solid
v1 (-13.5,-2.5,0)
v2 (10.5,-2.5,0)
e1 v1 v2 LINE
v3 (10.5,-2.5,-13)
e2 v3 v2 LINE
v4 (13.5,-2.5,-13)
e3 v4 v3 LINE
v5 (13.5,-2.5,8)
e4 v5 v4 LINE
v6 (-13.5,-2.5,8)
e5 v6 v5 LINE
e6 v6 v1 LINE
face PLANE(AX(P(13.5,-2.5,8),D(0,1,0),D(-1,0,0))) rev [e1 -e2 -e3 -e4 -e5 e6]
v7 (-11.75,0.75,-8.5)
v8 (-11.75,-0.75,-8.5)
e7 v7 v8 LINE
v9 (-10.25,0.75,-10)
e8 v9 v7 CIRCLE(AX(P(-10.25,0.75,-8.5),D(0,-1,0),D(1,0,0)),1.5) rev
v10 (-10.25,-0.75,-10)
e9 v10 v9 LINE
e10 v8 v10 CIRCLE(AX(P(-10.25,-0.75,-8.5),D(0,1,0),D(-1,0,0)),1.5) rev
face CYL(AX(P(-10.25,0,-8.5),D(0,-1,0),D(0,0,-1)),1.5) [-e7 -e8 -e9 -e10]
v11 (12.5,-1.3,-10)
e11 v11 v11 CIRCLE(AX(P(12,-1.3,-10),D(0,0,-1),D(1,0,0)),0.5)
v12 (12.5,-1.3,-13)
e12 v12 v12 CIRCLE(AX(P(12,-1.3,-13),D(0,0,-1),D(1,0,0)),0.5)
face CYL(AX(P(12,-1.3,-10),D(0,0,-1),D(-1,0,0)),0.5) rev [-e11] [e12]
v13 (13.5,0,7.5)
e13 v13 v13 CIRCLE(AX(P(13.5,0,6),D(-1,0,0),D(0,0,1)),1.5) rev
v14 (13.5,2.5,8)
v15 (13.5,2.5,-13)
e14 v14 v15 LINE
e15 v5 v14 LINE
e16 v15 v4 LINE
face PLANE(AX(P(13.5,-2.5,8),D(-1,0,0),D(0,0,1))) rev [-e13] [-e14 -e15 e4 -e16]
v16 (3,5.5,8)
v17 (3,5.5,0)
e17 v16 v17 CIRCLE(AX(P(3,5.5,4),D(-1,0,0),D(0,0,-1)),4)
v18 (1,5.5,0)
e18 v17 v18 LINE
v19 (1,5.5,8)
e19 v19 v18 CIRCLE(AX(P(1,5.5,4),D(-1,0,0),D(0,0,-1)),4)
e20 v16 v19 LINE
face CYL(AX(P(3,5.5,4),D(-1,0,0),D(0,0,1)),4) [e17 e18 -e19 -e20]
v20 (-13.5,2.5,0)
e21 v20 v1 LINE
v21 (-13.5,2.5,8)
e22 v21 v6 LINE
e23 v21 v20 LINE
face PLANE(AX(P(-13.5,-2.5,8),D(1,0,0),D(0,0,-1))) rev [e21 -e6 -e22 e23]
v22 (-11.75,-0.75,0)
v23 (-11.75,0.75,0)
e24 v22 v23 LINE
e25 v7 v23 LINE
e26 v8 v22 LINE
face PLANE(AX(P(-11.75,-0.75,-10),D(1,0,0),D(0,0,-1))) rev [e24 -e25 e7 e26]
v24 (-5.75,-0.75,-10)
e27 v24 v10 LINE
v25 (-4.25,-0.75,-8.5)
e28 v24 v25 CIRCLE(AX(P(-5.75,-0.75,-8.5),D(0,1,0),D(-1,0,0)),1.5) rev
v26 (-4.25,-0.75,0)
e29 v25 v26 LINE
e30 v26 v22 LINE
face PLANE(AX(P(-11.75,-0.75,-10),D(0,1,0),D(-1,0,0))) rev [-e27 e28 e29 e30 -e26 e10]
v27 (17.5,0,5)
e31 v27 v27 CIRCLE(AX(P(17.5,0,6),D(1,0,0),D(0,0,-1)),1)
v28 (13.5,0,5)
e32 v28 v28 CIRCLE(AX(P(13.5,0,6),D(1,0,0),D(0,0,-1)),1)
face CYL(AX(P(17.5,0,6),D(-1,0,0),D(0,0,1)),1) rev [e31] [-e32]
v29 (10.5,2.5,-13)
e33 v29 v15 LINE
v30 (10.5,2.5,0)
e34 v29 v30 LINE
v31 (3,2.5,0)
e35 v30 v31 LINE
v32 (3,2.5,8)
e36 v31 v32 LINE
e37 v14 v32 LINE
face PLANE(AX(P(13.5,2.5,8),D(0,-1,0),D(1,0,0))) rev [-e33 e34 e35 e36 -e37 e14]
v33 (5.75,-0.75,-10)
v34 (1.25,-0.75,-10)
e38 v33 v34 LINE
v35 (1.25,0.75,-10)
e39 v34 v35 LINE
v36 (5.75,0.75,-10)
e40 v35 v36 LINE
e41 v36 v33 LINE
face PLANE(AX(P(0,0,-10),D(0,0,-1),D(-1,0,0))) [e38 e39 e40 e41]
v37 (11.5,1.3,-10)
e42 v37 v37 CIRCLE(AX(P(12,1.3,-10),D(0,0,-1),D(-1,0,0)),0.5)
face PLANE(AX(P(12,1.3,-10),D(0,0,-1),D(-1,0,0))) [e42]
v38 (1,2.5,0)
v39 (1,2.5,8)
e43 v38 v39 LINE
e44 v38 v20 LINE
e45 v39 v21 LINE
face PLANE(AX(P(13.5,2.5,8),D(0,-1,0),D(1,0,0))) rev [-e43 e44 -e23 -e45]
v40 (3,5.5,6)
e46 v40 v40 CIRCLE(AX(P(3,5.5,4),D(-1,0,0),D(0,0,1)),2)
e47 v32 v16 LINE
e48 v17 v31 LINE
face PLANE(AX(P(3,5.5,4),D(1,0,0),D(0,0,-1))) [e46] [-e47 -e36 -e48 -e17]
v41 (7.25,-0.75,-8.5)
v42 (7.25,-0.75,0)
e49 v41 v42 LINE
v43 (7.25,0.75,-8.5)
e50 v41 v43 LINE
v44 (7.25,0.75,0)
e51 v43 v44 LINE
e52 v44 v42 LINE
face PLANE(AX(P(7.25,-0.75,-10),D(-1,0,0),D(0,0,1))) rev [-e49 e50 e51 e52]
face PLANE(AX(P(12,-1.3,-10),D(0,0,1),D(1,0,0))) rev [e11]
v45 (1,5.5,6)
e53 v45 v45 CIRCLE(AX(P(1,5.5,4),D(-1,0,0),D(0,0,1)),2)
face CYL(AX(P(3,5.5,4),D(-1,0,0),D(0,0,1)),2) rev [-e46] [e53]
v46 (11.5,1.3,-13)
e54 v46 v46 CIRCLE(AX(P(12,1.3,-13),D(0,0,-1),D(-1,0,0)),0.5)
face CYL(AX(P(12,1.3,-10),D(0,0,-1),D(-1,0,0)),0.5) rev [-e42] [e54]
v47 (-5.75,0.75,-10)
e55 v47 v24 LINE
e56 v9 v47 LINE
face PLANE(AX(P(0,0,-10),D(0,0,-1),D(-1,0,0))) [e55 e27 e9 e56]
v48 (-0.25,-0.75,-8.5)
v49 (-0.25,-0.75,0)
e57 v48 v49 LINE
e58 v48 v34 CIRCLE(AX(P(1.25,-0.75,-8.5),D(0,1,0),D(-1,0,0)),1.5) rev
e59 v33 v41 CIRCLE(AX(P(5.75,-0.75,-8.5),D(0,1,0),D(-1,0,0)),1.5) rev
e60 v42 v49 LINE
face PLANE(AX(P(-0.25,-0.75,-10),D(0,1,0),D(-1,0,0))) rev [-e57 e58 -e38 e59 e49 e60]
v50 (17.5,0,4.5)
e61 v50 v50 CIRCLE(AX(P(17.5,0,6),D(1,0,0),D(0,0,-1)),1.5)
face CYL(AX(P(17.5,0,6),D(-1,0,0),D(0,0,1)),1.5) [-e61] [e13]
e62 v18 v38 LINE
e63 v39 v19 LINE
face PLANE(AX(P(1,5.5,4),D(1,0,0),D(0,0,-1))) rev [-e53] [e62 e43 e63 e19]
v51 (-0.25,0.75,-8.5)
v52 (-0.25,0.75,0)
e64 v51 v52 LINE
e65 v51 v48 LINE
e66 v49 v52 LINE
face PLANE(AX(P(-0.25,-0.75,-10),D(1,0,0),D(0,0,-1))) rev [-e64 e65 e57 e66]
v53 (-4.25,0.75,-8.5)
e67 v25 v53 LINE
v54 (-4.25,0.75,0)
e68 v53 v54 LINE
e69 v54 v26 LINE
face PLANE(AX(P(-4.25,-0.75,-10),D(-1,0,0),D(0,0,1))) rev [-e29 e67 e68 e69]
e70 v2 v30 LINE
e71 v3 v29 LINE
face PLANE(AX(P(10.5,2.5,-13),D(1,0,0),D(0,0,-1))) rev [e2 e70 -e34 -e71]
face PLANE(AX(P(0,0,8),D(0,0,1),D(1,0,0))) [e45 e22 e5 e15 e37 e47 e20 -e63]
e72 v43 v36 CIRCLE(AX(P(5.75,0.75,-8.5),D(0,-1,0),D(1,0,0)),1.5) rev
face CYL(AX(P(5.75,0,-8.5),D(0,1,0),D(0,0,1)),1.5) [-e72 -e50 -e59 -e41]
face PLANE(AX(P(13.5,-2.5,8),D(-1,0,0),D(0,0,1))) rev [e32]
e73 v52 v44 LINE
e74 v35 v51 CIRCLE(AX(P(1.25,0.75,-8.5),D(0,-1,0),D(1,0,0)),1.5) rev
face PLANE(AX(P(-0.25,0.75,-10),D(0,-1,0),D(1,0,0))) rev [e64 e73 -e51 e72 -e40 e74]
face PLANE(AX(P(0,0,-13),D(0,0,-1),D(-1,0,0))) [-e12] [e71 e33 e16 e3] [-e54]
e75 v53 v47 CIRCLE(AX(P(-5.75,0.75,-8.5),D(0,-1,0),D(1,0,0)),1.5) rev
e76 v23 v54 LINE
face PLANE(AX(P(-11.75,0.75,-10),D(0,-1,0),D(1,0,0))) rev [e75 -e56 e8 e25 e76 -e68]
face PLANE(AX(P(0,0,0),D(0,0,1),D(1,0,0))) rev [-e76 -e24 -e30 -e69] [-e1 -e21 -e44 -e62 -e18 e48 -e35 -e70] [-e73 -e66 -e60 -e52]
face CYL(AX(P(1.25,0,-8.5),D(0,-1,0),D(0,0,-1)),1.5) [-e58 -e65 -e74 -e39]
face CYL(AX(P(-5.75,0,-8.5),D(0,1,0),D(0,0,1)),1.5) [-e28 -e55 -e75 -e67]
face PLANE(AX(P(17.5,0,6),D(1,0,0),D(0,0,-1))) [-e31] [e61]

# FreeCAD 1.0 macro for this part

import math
import FreeCAD as App
import Part
import Sketcher
from FreeCAD import Vector
Q = App.Units.Quantity


def edges_at(feature, points):
    """Names of the edges that pass closest to the given points."""
    edges = feature.Shape.Edges
    near = lambda p: min(range(len(edges)), key=lambda i: edges[i].distToShape(Part.Vertex(*p))[0])
    return sorted({f"Edge{near(p) + 1}" for p in points})

doc = App.newDocument("Part")
body = doc.addObject("PartDesign::Body", "Body")

# Sketch on XY plane
sketch1 = body.newObject("Sketcher::SketchObject", "Sketch")
sketch1.AttachmentSupport = (doc.getObject("XY_Plane"), [""])
sketch1.MapMode = "FlatFace"
sketch1.addGeometry(Part.LineSegment(Vector(-14, 2, 0), Vector(-14, -2, 0)), False)
sketch1.addGeometry(Part.LineSegment(Vector(-14, -2, 0), Vector(14, -2, 0)), False)
sketch1.addGeometry(Part.LineSegment(Vector(14, -2, 0), Vector(14, 2, 0)), False)
sketch1.addGeometry(Part.LineSegment(Vector(14, 2, 0), Vector(-14, 2, 0)), False)
sketch1.addConstraint(Sketcher.Constraint("Coincident", 0, 2, 1, 1))
sketch1.addConstraint(Sketcher.Constraint("Coincident", 1, 2, 2, 1))
sketch1.addConstraint(Sketcher.Constraint("Coincident", 2, 2, 3, 1))
sketch1.addConstraint(Sketcher.Constraint("Coincident", 3, 2, 0, 1))
sketch1.addConstraint(Sketcher.Constraint("Vertical", 0))
sketch1.addConstraint(Sketcher.Constraint("Horizontal", 1))
sketch1.addConstraint(Sketcher.Constraint("Vertical", 2))
sketch1.addConstraint(Sketcher.Constraint("Horizontal", 3))
sketch1.addConstraint(Sketcher.Constraint("Symmetric", 0, 2, 2, 2, -1, 1))
sketch1.addConstraint(Sketcher.Constraint("DistanceX", 1, 1, 1, 2, Q("27 mm")))
sketch1.addConstraint(Sketcher.Constraint("DistanceY", 0, 2, 0, 1, Q("5 mm")))
pad1 = body.newObject("PartDesign::Pad", "Pad")
pad1.Profile = sketch1
pad1.Length = 8

# Sketch on XY plane
sketch2 = body.newObject("Sketcher::SketchObject", "Sketch001")
sketch2.AttachmentSupport = (doc.getObject("XY_Plane"), [""])
sketch2.MapMode = "FlatFace"
sketch2.addGeometry(Part.LineSegment(Vector(13.5, 2.5, 0), Vector(13.5, -2.5, 0)), False)
sketch2.addGeometry(Part.LineSegment(Vector(13.5, -2.5, 0), Vector(10.5, -2.5, 0)), False)
sketch2.addGeometry(Part.LineSegment(Vector(10.5, -2.5, 0), Vector(10.5, 2.5, 0)), False)
sketch2.addGeometry(Part.LineSegment(Vector(10.5, 2.5, 0), Vector(13.5, 2.5, 0)), False)
sketch2.addConstraint(Sketcher.Constraint("Coincident", 0, 2, 1, 1))
sketch2.addConstraint(Sketcher.Constraint("Coincident", 1, 2, 2, 1))
sketch2.addConstraint(Sketcher.Constraint("Coincident", 2, 2, 3, 1))
sketch2.addConstraint(Sketcher.Constraint("Coincident", 3, 2, 0, 1))
sketch2.addConstraint(Sketcher.Constraint("Vertical", 0))
sketch2.addConstraint(Sketcher.Constraint("Horizontal", 1))
sketch2.addConstraint(Sketcher.Constraint("Vertical", 2))
sketch2.addConstraint(Sketcher.Constraint("Horizontal", 3))
sketch2.addConstraint(Sketcher.Constraint("DistanceX", 1, 2, 1, 1, Q("3 mm")))
sketch2.addConstraint(Sketcher.Constraint("DistanceY", 0, 2, 0, 1, Q("5 mm")))
sketch2.addConstraint(Sketcher.Constraint("DistanceX", -1, 1, 0, 2, Q("13.5 mm")))
sketch2.addConstraint(Sketcher.Constraint("DistanceY", 0, 2, -1, 1, Q("2.5 mm")))
pad2 = body.newObject("PartDesign::Pad", "Pad001")
pad2.Profile = sketch2
pad2.Length = 13
pad2.Reversed = True

# Sketch on XY plane
sketch3 = body.newObject("Sketcher::SketchObject", "Sketch002")
sketch3.AttachmentSupport = (doc.getObject("XY_Plane"), [""])
sketch3.MapMode = "FlatFace"
sketch3.AttachmentOffset = App.Placement(Vector(0, 0, -13), App.Rotation())
sketch3.addGeometry(Part.Circle(Vector(12, 1.3, 0), Vector(0, 0, 1), 0.5), False)
sketch3.addGeometry(Part.Circle(Vector(12, -1.3, 0), Vector(0, 0, 1), 0.5), False)
sketch3.addConstraint(Sketcher.Constraint("Equal", 0, 1))
sketch3.addConstraint(Sketcher.Constraint("Symmetric", 0, 3, 1, 3, -1))
sketch3.addConstraint(Sketcher.Constraint("Diameter", 0, Q("1 mm")))
sketch3.addConstraint(Sketcher.Constraint("DistanceX", -1, 1, 0, 3, Q("12 mm")))
sketch3.addConstraint(Sketcher.Constraint("DistanceY", -1, 1, 0, 3, Q("1.3 mm")))
pocket1 = body.newObject("PartDesign::Pocket", "Pocket")
pocket1.Profile = sketch3
pocket1.Length = 3
pocket1.Reversed = True

# Sketch on YZ plane
sketch4 = body.newObject("Sketcher::SketchObject", "Sketch003")
sketch4.AttachmentSupport = (doc.getObject("YZ_Plane"), [""])
sketch4.MapMode = "FlatFace"
sketch4.AttachmentOffset = App.Placement(Vector(0, 0, 13.5), App.Rotation())
sketch4.addGeometry(Part.Circle(Vector(0, 6, 0), Vector(0, 0, 1), 1.5), False)
sketch4.addGeometry(Part.Circle(Vector(0, 6, 0), Vector(0, 0, 1), 1), False)
sketch4.addConstraint(Sketcher.Constraint("Coincident", 1, 3, 0, 3))
sketch4.addConstraint(Sketcher.Constraint("PointOnObject", 0, 3, -2))
sketch4.addConstraint(Sketcher.Constraint("Diameter", 0, Q("3 mm")))
sketch4.addConstraint(Sketcher.Constraint("Diameter", 1, Q("2 mm")))
sketch4.addConstraint(Sketcher.Constraint("DistanceY", -1, 1, 0, 3, Q("6 mm")))
pad3 = body.newObject("PartDesign::Pad", "Pad002")
pad3.Profile = sketch4
pad3.Length = 4

# Sketch on YZ plane
sketch5 = body.newObject("Sketcher::SketchObject", "Sketch004")
sketch5.AttachmentSupport = (doc.getObject("YZ_Plane"), [""])
sketch5.MapMode = "FlatFace"
sketch5.AttachmentOffset = App.Placement(Vector(0, 0, 1), App.Rotation())
sketch5.addGeometry(Part.LineSegment(Vector(2.5, 0, 0), Vector(2.5, 8, 0)), False)
sketch5.addGeometry(Part.LineSegment(Vector(2.5, 8, 0), Vector(5.5, 8, 0)), False)
sketch5.addGeometry(Part.ArcOfCircle(Part.Circle(Vector(5.5, 4, 0), Vector(0, 0, 1), 4), math.radians(-90), math.radians(90)), False)
sketch5.addGeometry(Part.LineSegment(Vector(5.5, 0, 0), Vector(2.5, 0, 0)), False)
sketch5.addGeometry(Part.Circle(Vector(5.5, 4, 0), Vector(0, 0, 1), 2), False)
sketch5.addConstraint(Sketcher.Constraint("Coincident", 0, 2, 1, 1))
sketch5.addConstraint(Sketcher.Constraint("Tangent", 1, 2, 2, 2))
sketch5.addConstraint(Sketcher.Constraint("Tangent", 2, 1, 3, 1))
sketch5.addConstraint(Sketcher.Constraint("Coincident", 3, 2, 0, 1))
sketch5.addConstraint(Sketcher.Constraint("Vertical", 0))
sketch5.addConstraint(Sketcher.Constraint("Horizontal", 1))
sketch5.addConstraint(Sketcher.Constraint("Horizontal", 3))
sketch5.addConstraint(Sketcher.Constraint("Coincident", 4, 3, 2, 3))
sketch5.addConstraint(Sketcher.Constraint("PointOnObject", 2, 1, -1))
sketch5.addConstraint(Sketcher.Constraint("Diameter", 4, Q("4 mm")))
sketch5.addConstraint(Sketcher.Constraint("Radius", 2, Q("4 mm")))
sketch5.addConstraint(Sketcher.Constraint("DistanceX", 1, 1, 1, 2, Q("3 mm")))
sketch5.addConstraint(Sketcher.Constraint("DistanceX", -1, 1, 2, 3, Q("5.5 mm")))
pad4 = body.newObject("PartDesign::Pad", "Pad003")
pad4.Profile = sketch5
pad4.Length = 2

# Sketch on XY plane
sketch6 = body.newObject("Sketcher::SketchObject", "Sketch005")
sketch6.AttachmentSupport = (doc.getObject("XY_Plane"), [""])
sketch6.MapMode = "FlatFace"
sketch6.addGeometry(Part.LineSegment(Vector(7.2, 0.8, 0), Vector(7.2, -0.8, 0)), False)
sketch6.addGeometry(Part.LineSegment(Vector(7.2, -0.8, 0), Vector(-0.2, -0.8, 0)), False)
sketch6.addGeometry(Part.LineSegment(Vector(-0.2, -0.8, 0), Vector(-0.2, 0.8, 0)), False)
sketch6.addGeometry(Part.LineSegment(Vector(-0.2, 0.8, 0), Vector(7.2, 0.8, 0)), False)
sketch6.addGeometry(Part.LineSegment(Vector(-4.2, 0.8, 0), Vector(-4.2, -0.8, 0)), False)
sketch6.addGeometry(Part.LineSegment(Vector(-4.2, -0.8, 0), Vector(-11.8, -0.8, 0)), False)
sketch6.addGeometry(Part.LineSegment(Vector(-11.8, -0.8, 0), Vector(-11.8, 0.8, 0)), False)
sketch6.addGeometry(Part.LineSegment(Vector(-11.8, 0.8, 0), Vector(-4.2, 0.8, 0)), False)
sketch6.addConstraint(Sketcher.Constraint("Coincident", 0, 2, 1, 1))
sketch6.addConstraint(Sketcher.Constraint("Coincident", 1, 2, 2, 1))
sketch6.addConstraint(Sketcher.Constraint("Coincident", 2, 2, 3, 1))
sketch6.addConstraint(Sketcher.Constraint("Coincident", 3, 2, 0, 1))
sketch6.addConstraint(Sketcher.Constraint("Coincident", 4, 2, 5, 1))
sketch6.addConstraint(Sketcher.Constraint("Coincident", 5, 2, 6, 1))
sketch6.addConstraint(Sketcher.Constraint("Coincident", 6, 2, 7, 1))
sketch6.addConstraint(Sketcher.Constraint("Coincident", 7, 2, 4, 1))
sketch6.addConstraint(Sketcher.Constraint("Vertical", 0))
sketch6.addConstraint(Sketcher.Constraint("Horizontal", 1))
sketch6.addConstraint(Sketcher.Constraint("Vertical", 2))
sketch6.addConstraint(Sketcher.Constraint("Horizontal", 3))
sketch6.addConstraint(Sketcher.Constraint("Vertical", 4))
sketch6.addConstraint(Sketcher.Constraint("Horizontal", 5))
sketch6.addConstraint(Sketcher.Constraint("Vertical", 6))
sketch6.addConstraint(Sketcher.Constraint("Horizontal", 7))
sketch6.addConstraint(Sketcher.Constraint("Horizontal", 1, 2, 4, 2))
sketch6.addConstraint(Sketcher.Constraint("Horizontal", 3, 2, 6, 2))
sketch6.addConstraint(Sketcher.Constraint("Equal", 3, 5))
sketch6.addConstraint(Sketcher.Constraint("DistanceX", 1, 2, 1, 1, Q("7.5 mm")))
sketch6.addConstraint(Sketcher.Constraint("DistanceY", 0, 2, 0, 1, Q("1.5 mm")))
sketch6.addConstraint(Sketcher.Constraint("DistanceX", 4, 2, 1, 2, Q("4 mm")))
sketch6.addConstraint(Sketcher.Constraint("DistanceX", -1, 1, 0, 2, Q("7.25 mm")))
sketch6.addConstraint(Sketcher.Constraint("DistanceY", 0, 2, -1, 1, Q("0.75 mm")))
pad5 = body.newObject("PartDesign::Pad", "Pad004")
pad5.Profile = sketch6
pad5.Length = 10
pad5.Reversed = True
doc.recompute()

fillet = body.newObject("PartDesign::Fillet", "Fillet")
fillet.Base = (pad5, edges_at(pad5, [
    (7.25, 0, -10),
    (-0.25, 0, -10),
    (-4.25, 0, -10),
    (-11.75, 0, -10),
]))
fillet.Radius = 1.5

doc.recompute()
